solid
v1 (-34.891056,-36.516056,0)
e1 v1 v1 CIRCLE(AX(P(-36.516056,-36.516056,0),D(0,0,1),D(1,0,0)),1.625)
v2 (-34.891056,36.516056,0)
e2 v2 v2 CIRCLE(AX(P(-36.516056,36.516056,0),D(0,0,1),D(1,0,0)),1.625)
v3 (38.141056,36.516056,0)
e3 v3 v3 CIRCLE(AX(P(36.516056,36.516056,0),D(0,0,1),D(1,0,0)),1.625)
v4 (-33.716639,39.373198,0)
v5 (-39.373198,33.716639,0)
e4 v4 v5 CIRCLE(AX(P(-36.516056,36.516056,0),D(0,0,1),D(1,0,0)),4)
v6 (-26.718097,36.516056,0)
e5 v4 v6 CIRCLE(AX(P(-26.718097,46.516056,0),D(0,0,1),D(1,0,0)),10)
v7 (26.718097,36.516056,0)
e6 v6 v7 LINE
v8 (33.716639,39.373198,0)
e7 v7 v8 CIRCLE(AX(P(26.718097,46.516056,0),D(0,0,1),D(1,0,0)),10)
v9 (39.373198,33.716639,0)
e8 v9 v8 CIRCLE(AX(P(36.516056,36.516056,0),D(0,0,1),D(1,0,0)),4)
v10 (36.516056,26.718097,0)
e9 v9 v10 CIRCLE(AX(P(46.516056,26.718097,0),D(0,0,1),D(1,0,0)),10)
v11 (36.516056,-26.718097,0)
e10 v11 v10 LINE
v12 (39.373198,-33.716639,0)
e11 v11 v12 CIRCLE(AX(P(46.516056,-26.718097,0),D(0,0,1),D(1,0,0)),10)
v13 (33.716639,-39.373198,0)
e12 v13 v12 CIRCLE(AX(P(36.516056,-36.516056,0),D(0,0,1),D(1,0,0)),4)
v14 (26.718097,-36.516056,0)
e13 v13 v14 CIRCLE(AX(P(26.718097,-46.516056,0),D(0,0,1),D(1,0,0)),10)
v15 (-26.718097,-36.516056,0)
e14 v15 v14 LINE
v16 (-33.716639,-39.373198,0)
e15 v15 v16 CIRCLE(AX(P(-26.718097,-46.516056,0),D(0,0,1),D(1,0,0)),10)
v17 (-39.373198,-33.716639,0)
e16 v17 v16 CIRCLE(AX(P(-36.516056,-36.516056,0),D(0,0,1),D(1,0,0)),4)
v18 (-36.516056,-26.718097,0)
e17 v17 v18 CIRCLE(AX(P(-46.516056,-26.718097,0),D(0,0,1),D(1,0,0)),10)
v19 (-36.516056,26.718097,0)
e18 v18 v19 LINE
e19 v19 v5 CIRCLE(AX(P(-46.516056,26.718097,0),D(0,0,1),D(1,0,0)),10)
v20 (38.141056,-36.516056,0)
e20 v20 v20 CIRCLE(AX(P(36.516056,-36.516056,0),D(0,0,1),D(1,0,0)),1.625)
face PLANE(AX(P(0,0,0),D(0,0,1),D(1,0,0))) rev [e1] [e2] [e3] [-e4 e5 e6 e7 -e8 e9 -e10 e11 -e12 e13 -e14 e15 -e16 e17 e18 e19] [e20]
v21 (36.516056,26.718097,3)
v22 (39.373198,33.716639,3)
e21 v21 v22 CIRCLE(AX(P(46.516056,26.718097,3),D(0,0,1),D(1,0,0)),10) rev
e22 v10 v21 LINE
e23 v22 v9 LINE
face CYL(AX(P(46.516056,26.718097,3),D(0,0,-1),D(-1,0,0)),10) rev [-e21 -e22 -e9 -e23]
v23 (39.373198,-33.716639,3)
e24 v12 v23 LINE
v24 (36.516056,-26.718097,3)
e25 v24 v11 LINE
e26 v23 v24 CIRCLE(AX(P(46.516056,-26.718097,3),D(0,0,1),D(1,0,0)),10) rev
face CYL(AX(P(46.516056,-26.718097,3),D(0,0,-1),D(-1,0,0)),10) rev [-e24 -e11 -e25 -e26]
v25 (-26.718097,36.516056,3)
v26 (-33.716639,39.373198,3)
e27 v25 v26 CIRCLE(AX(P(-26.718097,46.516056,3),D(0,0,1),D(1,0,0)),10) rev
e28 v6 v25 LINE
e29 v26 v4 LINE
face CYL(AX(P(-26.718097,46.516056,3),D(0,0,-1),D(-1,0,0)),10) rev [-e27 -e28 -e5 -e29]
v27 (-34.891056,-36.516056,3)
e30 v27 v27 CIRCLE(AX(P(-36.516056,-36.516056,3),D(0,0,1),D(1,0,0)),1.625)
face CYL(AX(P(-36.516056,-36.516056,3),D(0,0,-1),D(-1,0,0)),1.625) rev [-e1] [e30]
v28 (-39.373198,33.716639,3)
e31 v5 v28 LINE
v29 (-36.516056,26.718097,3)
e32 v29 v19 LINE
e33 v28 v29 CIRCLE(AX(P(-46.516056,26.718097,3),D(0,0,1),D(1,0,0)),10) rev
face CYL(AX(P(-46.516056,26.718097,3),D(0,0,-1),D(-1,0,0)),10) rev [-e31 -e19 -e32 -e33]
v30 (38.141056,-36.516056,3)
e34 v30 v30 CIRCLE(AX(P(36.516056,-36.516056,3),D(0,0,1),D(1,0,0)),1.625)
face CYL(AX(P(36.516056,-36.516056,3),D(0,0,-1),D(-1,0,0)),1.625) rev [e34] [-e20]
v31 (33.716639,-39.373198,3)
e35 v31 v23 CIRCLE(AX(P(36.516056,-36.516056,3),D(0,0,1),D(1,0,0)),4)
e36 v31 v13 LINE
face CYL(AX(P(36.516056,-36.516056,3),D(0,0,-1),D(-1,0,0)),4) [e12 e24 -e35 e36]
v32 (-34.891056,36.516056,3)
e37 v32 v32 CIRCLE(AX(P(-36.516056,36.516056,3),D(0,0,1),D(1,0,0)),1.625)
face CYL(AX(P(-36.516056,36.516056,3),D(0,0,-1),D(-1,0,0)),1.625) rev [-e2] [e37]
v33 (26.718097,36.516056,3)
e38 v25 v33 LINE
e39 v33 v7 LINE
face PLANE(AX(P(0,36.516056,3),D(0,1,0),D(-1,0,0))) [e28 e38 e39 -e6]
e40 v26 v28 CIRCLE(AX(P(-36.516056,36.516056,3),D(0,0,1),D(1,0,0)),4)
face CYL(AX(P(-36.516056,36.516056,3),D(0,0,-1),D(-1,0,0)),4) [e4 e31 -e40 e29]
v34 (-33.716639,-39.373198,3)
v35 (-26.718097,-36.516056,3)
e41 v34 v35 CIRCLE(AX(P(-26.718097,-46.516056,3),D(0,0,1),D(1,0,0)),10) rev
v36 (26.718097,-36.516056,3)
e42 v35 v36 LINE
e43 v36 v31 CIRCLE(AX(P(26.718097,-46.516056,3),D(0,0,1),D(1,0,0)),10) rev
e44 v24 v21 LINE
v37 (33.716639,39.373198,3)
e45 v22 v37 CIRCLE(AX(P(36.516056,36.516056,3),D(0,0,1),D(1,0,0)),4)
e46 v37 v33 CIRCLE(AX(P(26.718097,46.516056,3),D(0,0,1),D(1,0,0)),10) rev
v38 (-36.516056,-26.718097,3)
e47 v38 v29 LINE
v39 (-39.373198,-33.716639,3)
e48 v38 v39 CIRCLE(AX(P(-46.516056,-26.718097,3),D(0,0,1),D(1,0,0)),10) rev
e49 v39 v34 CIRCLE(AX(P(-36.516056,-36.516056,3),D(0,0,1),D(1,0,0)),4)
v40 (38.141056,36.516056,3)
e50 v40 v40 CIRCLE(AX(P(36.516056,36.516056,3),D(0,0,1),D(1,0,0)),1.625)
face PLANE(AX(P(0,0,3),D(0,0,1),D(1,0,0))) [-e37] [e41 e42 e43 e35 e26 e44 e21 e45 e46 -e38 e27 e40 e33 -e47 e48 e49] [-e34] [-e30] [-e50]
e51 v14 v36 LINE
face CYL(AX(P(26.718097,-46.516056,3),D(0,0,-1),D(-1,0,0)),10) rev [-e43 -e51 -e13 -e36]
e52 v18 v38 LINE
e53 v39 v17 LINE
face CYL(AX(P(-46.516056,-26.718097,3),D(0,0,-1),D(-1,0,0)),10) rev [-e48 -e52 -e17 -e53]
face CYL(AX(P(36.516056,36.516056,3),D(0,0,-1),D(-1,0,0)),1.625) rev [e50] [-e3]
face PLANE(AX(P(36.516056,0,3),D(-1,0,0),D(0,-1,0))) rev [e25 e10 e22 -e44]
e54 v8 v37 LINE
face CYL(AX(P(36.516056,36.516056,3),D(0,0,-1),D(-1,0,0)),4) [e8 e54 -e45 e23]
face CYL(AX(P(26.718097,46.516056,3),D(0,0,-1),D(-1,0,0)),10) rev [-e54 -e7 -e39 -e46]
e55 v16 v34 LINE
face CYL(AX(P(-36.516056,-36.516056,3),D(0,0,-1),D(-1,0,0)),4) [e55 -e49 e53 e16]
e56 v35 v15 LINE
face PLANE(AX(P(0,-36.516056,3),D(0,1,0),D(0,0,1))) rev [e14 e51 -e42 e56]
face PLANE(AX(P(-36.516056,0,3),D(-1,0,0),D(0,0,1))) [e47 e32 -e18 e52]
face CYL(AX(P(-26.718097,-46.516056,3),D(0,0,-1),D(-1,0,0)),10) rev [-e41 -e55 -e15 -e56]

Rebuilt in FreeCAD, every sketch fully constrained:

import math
import FreeCAD as App
import Part
import Sketcher
Q = App.Units.Quantity


def edges_at(feature, points):
    """Names of the edges that pass closest to the given points."""
    edges = feature.Shape.Edges
    near = lambda p: min(range(len(edges)), key=lambda i: edges[i].distToShape(Part.Vertex(*p))[0])
    return sorted({f"Edge{near(p) + 1}" for p in points})

doc = App.newDocument("Part")
body = doc.addObject("PartDesign::Body", "Body")

# Sketch on XY plane
sketch1 = doc.addObject("Sketcher::SketchObject", "Sketch")
body.addObject(sketch1)
sketch1.AttachmentSupport = (doc.XY_Plane, [""])
sketch1.MapMode = "FlatFace"
sketch1.addGeometry([
    Part.ArcOfCircle(Part.Circle(App.Vector(-36.5, -36.5, 0), App.Vector(0, 0, 1), 4), math.radians(90), math.radians(360)),  # 0
    Part.LineSegment(App.Vector(-32.5, -36.5, 0), App.Vector(32.5, -36.5, 0)),  # 1
    Part.ArcOfCircle(Part.Circle(App.Vector(36.5, -36.5, 0), App.Vector(0, 0, 1), 4), math.radians(180), math.radians(450)),  # 2
    Part.LineSegment(App.Vector(36.5, -32.5, 0), App.Vector(36.5, 32.5, 0)),  # 3
    Part.ArcOfCircle(Part.Circle(App.Vector(36.5, 36.5, 0), App.Vector(0, 0, 1), 4), math.radians(-90), math.radians(180)),  # 4
    Part.LineSegment(App.Vector(32.5, 36.5, 0), App.Vector(-32.5, 36.5, 0)),  # 5
    Part.ArcOfCircle(Part.Circle(App.Vector(-36.5, 36.5, 0), App.Vector(0, 0, 1), 4), math.radians(0), math.radians(270)),  # 6
    Part.LineSegment(App.Vector(-36.5, 32.5, 0), App.Vector(-36.5, -32.5, 0)),  # 7
    Part.Circle(App.Vector(-36.5, -36.5, 0), App.Vector(0, 0, 1), 1.6),  # 8
    Part.Circle(App.Vector(36.5, -36.5, 0), App.Vector(0, 0, 1), 1.6),  # 9
    Part.Circle(App.Vector(-36.5, 36.5, 0), App.Vector(0, 0, 1), 1.6),  # 10
    Part.Circle(App.Vector(36.5, 36.5, 0), App.Vector(0, 0, 1), 1.6),  # 11
], False)
sketch1.addConstraint([
    Sketcher.Constraint("Coincident", 0, 2, 1, 1),
    Sketcher.Constraint("Coincident", 1, 2, 2, 1),
    Sketcher.Constraint("Coincident", 2, 2, 3, 1),
    Sketcher.Constraint("Coincident", 3, 2, 4, 1),
    Sketcher.Constraint("Coincident", 4, 2, 5, 1),
    Sketcher.Constraint("Coincident", 5, 2, 6, 1),
    Sketcher.Constraint("Coincident", 6, 2, 7, 1),
    Sketcher.Constraint("Coincident", 7, 2, 0, 1),
    Sketcher.Constraint("Horizontal", 1),
    Sketcher.Constraint("Vertical", 3),
    Sketcher.Constraint("Horizontal", 5),
    Sketcher.Constraint("Vertical", 7),
    Sketcher.Constraint("Coincident", 8, 3, 0, 3),
    Sketcher.Constraint("Coincident", 9, 3, 2, 3),
    Sketcher.Constraint("Coincident", 10, 3, 6, 3),
    Sketcher.Constraint("Coincident", 11, 3, 4, 3),
    Sketcher.Constraint("Equal", 0, 2),
    Sketcher.Constraint("Equal", 2, 4),
    Sketcher.Constraint("Equal", 4, 6),
    Sketcher.Constraint("Equal", 8, 9),
    Sketcher.Constraint("Equal", 9, 10),
    Sketcher.Constraint("Equal", 10, 11),
    Sketcher.Constraint("Symmetric", 0, 3, 4, 3, -1, 1),
    Sketcher.Constraint("Symmetric", 2, 3, 6, 3, -1, 1),
    Sketcher.Constraint("Symmetric", 0, 3, 2, 3, -2),
    Sketcher.Constraint("Horizontal", 9, 3, 0, 2),
    Sketcher.Constraint("Horizontal", 11, 3, 4, 2),
    Sketcher.Constraint("Vertical", 11, 3, 2, 2),
    Sketcher.Constraint("Vertical", 10, 3, 6, 2),
    Sketcher.Constraint("Equal", 5, 3),
    Sketcher.Constraint("Radius", 0, Q("4 mm")),
    Sketcher.Constraint("Diameter", 8, Q("3.25 mm")),
    Sketcher.Constraint("DistanceX", 1, 1, 1, 2, Q("65.032111 mm")),
])
pad1 = doc.addObject("PartDesign::Pad", "Pad")
body.addObject(pad1)
pad1.Profile = sketch1
pad1.Length = 3
doc.recompute()

fillet = doc.addObject("PartDesign::Fillet", "Fillet")
body.addObject(fillet)
fillet.Base = (pad1, edges_at(pad1, [
    (-36.516, -32.516, 1.5),
    (-36.516, 32.516, 1.5),
    (-32.516, 36.516, 1.5),
    (32.516, 36.516, 1.5),
    (36.516, 32.516, 1.5),
    (36.516, -32.516, 1.5),
    (32.516, -36.516, 1.5),
    (-32.516, -36.516, 1.5),
]))
fillet.Radius = 10

doc.recompute()
